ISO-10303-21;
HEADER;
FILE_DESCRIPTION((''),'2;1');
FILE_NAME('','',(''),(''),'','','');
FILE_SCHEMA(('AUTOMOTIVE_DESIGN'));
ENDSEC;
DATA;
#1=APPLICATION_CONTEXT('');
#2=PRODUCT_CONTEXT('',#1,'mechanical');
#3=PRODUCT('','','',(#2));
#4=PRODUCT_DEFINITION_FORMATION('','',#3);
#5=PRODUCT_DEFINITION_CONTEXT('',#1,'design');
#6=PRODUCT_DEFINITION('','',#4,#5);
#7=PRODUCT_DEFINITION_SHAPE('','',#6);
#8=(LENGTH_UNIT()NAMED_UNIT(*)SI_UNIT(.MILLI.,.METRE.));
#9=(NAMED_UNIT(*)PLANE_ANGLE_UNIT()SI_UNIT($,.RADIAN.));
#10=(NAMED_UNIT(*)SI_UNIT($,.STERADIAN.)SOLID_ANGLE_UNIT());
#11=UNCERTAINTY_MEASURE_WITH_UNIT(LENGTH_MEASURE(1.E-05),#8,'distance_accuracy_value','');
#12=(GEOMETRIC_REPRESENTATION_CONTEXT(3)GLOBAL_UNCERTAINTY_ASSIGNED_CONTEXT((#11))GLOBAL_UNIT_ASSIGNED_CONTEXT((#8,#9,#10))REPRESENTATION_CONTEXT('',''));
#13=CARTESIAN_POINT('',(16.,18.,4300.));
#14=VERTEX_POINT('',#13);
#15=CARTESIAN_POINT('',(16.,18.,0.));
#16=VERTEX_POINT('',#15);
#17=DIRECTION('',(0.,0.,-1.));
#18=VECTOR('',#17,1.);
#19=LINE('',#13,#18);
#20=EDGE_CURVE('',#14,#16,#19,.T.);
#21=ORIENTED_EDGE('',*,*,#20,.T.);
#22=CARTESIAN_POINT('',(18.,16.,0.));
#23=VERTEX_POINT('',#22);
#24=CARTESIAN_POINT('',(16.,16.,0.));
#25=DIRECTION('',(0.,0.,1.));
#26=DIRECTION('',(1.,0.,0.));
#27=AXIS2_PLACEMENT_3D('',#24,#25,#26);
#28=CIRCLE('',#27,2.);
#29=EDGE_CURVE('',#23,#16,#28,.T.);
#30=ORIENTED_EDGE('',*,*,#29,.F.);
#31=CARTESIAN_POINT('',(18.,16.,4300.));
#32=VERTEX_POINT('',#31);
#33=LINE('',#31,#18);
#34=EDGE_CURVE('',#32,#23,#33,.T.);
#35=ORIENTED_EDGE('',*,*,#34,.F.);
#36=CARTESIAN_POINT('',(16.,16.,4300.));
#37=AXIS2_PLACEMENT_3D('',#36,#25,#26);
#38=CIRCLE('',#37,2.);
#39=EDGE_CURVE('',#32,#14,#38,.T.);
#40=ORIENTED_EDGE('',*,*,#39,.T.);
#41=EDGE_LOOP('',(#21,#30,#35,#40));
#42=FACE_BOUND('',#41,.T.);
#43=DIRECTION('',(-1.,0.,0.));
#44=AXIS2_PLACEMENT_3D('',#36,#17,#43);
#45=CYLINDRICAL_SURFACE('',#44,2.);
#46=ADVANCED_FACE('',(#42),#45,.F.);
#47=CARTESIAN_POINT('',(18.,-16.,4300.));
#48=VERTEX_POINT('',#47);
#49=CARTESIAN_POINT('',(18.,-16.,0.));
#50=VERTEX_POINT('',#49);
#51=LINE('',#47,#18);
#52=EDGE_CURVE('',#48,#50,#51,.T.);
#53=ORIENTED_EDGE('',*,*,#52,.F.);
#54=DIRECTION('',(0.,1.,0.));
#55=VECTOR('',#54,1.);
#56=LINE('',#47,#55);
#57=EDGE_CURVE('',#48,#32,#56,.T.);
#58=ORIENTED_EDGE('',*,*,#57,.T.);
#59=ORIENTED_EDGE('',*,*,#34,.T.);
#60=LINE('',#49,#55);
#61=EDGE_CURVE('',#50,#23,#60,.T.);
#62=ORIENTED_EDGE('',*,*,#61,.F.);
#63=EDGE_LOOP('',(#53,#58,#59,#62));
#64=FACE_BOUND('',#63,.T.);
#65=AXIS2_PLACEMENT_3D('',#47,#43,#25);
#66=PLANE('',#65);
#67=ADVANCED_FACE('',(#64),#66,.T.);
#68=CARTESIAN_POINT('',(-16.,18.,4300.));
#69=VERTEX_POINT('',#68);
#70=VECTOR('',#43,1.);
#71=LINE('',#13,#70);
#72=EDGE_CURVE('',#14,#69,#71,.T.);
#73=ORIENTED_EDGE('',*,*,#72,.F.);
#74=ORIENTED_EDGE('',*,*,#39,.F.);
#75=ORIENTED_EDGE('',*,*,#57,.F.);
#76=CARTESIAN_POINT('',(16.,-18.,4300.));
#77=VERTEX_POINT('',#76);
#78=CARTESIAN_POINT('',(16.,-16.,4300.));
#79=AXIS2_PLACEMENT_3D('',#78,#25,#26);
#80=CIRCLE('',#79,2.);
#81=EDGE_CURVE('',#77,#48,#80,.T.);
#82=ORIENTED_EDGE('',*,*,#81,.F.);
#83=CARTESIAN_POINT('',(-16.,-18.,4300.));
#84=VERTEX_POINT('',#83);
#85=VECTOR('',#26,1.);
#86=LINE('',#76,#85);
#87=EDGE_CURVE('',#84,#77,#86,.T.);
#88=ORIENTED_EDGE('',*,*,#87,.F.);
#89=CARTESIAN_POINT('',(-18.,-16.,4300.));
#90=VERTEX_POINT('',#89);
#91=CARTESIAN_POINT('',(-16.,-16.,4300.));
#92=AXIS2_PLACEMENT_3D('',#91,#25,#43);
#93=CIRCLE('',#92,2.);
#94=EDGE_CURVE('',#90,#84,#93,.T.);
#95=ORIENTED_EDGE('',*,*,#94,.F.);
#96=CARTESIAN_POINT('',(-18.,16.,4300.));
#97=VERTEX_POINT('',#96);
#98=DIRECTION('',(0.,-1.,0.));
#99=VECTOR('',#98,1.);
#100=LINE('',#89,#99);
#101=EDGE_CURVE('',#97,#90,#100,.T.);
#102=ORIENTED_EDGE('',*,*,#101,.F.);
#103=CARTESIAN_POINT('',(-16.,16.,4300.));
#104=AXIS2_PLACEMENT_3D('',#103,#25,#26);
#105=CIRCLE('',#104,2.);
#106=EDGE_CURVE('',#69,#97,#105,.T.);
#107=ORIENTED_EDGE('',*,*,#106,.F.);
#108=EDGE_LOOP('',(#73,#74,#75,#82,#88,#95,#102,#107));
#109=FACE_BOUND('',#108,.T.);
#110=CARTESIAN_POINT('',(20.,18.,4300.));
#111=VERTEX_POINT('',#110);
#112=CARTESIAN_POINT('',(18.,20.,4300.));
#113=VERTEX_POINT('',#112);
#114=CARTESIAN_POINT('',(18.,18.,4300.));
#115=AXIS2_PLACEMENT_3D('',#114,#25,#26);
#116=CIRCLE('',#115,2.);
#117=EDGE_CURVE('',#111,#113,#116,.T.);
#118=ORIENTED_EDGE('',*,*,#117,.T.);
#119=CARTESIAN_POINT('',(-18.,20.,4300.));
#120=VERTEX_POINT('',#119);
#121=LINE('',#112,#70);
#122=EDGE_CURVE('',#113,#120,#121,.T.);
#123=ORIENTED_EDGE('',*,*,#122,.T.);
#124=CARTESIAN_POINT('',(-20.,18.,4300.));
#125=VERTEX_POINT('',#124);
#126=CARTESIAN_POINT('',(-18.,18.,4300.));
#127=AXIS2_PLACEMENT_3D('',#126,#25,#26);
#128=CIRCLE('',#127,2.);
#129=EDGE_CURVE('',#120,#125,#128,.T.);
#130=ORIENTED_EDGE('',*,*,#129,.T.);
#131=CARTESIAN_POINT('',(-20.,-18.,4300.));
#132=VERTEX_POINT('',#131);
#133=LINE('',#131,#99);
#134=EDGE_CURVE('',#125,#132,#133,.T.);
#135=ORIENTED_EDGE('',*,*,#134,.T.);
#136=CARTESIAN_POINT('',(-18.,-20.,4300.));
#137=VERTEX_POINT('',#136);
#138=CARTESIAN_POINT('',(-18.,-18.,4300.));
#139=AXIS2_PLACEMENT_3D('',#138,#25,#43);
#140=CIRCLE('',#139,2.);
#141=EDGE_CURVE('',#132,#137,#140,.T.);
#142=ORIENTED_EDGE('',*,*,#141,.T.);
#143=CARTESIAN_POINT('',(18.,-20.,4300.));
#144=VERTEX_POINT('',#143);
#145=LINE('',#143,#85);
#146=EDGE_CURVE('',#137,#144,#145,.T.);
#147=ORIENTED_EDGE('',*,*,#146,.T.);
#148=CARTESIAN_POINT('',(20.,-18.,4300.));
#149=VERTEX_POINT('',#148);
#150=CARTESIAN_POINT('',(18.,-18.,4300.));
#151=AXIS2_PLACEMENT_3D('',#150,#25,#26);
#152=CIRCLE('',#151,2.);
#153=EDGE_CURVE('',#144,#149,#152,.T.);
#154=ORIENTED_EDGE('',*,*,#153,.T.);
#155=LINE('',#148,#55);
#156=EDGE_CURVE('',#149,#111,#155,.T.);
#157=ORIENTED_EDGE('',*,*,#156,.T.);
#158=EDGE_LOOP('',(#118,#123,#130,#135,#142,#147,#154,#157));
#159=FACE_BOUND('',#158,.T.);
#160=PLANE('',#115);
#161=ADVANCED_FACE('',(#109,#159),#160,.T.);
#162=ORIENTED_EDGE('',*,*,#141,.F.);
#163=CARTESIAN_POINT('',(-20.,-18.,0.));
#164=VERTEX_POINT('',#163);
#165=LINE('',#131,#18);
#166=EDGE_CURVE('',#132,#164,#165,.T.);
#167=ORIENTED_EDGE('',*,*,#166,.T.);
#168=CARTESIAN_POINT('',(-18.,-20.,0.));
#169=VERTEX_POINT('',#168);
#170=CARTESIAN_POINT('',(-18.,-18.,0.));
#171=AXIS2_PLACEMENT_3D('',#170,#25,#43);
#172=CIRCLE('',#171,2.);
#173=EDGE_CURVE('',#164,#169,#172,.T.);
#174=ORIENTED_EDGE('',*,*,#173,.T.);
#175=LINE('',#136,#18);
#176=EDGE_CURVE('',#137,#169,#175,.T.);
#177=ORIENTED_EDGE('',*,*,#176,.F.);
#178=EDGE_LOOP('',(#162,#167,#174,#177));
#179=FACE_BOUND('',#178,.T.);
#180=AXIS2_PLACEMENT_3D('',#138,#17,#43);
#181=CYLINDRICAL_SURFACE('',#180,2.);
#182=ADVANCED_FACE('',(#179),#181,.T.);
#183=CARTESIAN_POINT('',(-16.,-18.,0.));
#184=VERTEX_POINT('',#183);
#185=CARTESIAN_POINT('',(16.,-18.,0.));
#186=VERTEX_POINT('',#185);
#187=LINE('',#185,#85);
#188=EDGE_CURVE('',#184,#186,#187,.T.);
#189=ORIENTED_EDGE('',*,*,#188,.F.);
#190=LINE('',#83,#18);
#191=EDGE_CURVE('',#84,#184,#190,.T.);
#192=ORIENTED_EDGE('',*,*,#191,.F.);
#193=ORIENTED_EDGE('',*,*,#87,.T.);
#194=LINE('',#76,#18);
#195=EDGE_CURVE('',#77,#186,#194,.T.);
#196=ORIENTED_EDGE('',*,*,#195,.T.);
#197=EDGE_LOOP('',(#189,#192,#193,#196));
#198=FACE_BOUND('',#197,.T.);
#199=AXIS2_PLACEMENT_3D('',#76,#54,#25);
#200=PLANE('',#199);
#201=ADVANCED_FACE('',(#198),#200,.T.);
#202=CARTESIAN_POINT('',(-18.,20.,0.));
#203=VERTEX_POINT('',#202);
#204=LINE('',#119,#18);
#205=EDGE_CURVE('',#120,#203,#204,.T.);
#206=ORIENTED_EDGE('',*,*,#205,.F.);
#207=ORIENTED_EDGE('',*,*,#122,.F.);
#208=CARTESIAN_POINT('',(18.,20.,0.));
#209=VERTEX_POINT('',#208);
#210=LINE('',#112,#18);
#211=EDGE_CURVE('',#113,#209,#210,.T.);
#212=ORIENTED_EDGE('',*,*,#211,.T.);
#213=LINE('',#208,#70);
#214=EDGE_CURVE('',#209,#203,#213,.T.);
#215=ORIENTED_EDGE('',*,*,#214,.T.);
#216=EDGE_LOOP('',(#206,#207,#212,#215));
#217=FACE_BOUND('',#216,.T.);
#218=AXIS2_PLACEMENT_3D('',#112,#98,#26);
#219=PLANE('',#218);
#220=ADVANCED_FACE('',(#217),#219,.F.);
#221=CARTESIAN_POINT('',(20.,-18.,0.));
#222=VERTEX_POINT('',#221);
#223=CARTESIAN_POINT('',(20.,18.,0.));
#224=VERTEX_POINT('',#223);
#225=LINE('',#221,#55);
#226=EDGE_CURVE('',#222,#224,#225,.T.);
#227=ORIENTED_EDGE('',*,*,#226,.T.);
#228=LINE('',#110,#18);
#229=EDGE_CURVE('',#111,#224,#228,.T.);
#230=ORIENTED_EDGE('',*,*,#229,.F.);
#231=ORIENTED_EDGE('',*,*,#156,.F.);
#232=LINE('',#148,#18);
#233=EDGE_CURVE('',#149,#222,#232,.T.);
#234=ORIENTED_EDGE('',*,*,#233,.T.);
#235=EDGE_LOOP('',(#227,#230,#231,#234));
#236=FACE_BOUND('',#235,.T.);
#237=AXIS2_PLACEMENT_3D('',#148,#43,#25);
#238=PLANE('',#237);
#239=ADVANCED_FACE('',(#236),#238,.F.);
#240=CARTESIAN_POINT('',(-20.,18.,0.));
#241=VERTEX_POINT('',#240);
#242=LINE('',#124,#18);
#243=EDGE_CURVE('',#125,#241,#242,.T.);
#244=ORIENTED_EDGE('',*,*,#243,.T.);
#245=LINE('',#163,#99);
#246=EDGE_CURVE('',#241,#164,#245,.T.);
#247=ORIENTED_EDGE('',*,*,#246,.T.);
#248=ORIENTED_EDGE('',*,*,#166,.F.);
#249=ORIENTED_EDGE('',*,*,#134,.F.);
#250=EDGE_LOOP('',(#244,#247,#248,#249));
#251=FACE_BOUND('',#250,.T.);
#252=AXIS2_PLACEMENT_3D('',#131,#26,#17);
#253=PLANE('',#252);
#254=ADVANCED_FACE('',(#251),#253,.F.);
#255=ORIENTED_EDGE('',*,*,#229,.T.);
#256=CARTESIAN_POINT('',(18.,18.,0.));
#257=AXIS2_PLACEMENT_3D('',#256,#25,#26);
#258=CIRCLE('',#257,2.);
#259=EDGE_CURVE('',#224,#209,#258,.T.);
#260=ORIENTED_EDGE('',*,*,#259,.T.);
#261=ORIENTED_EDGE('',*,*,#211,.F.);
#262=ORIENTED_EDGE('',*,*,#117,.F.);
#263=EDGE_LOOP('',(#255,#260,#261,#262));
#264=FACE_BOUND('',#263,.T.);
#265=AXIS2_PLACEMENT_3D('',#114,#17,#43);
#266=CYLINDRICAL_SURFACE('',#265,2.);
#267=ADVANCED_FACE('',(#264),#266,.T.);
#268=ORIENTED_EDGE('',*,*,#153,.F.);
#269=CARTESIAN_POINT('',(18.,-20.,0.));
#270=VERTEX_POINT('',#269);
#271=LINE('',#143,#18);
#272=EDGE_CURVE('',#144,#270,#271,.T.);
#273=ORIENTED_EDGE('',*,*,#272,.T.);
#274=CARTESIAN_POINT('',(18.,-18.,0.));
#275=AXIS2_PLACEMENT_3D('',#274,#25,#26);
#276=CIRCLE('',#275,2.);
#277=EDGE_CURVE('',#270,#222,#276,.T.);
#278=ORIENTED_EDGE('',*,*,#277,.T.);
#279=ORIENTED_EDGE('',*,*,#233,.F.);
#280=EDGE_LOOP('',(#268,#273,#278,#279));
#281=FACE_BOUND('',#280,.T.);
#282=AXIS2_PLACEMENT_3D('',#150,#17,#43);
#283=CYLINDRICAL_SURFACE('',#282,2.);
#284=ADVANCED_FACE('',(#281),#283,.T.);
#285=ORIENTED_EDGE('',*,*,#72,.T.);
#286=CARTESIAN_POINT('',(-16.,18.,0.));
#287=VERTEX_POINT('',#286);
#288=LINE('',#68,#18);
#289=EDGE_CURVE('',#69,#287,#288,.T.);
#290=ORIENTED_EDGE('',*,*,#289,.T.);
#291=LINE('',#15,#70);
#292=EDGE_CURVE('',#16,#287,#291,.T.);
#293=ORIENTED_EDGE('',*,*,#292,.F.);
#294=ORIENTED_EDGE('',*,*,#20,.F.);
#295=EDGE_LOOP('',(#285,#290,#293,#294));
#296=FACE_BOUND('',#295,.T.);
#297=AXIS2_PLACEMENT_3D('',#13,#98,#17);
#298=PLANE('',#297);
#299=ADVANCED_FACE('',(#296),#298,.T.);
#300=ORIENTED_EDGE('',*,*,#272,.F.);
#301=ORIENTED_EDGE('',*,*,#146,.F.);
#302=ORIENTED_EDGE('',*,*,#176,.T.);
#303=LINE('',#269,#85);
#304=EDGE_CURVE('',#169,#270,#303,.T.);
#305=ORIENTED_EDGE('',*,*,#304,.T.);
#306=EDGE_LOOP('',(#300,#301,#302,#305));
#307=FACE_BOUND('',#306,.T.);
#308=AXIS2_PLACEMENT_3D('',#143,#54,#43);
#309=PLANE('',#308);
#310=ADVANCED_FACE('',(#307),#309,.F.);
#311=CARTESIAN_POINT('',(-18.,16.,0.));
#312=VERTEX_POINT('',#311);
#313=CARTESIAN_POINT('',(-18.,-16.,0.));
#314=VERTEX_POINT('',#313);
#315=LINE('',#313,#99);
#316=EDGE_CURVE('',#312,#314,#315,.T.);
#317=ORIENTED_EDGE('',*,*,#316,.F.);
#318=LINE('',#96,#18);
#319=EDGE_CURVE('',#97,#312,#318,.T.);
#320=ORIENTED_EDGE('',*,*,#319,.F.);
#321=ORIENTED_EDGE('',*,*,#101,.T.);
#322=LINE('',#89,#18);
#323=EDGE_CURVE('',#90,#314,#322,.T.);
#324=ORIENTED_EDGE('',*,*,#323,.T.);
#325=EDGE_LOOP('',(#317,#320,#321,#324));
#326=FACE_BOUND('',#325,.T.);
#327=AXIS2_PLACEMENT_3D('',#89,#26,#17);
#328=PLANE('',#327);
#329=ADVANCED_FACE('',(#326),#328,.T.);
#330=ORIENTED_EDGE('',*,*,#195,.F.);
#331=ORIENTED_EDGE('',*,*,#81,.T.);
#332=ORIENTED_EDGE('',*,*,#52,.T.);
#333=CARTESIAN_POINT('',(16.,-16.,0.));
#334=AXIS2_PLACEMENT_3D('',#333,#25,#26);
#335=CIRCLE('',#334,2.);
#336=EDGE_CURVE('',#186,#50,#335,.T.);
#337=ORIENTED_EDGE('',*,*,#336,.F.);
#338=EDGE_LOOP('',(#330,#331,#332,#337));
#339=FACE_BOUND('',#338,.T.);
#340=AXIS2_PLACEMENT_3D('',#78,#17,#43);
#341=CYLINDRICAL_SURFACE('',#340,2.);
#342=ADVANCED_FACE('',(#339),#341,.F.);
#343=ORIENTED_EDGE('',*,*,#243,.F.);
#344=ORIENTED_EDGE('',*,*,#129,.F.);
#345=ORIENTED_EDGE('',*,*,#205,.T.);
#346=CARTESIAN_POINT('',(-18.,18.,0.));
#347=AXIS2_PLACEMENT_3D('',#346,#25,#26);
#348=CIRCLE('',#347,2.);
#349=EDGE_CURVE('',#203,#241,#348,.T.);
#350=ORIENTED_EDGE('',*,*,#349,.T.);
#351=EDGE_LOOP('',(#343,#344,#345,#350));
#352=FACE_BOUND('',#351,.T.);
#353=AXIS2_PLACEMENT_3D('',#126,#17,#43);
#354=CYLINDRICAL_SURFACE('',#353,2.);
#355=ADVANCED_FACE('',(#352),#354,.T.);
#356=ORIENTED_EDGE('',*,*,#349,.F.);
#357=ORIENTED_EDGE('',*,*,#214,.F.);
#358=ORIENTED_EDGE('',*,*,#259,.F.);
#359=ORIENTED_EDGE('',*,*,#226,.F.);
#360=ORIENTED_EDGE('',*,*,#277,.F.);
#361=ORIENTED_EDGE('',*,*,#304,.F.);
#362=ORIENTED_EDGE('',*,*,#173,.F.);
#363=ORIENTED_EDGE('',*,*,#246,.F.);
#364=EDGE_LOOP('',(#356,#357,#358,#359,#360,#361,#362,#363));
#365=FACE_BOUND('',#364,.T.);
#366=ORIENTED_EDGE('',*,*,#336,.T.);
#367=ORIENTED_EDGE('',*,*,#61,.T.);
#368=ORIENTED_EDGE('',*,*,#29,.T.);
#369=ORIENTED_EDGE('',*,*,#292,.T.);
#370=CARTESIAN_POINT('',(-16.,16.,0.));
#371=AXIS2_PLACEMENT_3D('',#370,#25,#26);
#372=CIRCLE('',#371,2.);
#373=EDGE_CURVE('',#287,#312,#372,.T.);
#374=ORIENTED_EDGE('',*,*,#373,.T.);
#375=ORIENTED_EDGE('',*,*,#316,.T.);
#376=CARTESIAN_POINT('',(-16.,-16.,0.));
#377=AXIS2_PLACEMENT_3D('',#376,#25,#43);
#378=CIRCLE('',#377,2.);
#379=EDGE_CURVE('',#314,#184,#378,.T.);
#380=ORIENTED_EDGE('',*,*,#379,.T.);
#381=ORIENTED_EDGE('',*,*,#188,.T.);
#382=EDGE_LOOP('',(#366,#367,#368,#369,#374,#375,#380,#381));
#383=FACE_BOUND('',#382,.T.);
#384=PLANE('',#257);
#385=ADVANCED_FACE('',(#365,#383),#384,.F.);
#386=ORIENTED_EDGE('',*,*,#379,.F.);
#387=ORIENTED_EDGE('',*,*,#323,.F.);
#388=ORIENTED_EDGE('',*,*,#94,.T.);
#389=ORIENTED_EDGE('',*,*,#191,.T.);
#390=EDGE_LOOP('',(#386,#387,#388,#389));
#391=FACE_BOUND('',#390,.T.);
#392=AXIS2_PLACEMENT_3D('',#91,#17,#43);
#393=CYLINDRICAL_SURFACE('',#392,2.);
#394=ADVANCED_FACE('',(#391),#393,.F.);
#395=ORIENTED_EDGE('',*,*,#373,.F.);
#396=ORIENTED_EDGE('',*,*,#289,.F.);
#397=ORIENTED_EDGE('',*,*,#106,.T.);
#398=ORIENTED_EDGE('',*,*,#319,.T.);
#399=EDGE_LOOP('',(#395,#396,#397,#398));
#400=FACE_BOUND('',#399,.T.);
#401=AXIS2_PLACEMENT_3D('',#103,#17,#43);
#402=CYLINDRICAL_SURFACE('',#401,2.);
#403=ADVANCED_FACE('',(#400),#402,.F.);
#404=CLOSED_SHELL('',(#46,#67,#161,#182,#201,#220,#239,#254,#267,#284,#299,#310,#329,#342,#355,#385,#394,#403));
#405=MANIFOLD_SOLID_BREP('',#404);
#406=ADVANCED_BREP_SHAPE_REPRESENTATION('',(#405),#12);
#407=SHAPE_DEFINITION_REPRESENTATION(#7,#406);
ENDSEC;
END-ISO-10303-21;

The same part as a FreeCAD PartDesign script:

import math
import FreeCAD as App
import Part
import Sketcher

V = App.Vector
Q = App.Units.Quantity

doc = App.newDocument("Part")
body = doc.addObject("PartDesign::Body", "Body")

sketch1 = body.newObject("Sketcher::SketchObject", "Sketch")
sketch1.AttachmentSupport = (doc.getObject("XY_Plane"), [""])
sketch1.MapMode = "FlatFace"
sketch1.addGeometry([
    Part.LineSegment(V(-18, -20, 0), V(18, -20, 0)),
    Part.ArcOfCircle(Part.Circle(V(18, -18, 0), V(0, 0, 1), 2), math.radians(-90), math.radians(0)),
    Part.LineSegment(V(20, -18, 0), V(20, 18, 0)),
    Part.ArcOfCircle(Part.Circle(V(18, 18, 0), V(0, 0, 1), 2), math.radians(0), math.radians(90)),
    Part.LineSegment(V(18, 20, 0), V(-18, 20, 0)),
    Part.ArcOfCircle(Part.Circle(V(-18, 18, 0), V(0, 0, 1), 2), math.radians(90), math.radians(180)),
    Part.LineSegment(V(-20, 18, 0), V(-20, -18, 0)),
    Part.ArcOfCircle(Part.Circle(V(-18, -18, 0), V(0, 0, 1), 2), math.radians(-180), math.radians(-90)),
    Part.LineSegment(V(16, -18, 0), V(-16, -18, 0)),
    Part.ArcOfCircle(Part.Circle(V(-16, -16, 0), V(0, 0, 1), 2), math.radians(-180), math.radians(-90)),
    Part.LineSegment(V(-18, -16, 0), V(-18, 16, 0)),
    Part.ArcOfCircle(Part.Circle(V(-16, 16, 0), V(0, 0, 1), 2), math.radians(90), math.radians(180)),
    Part.LineSegment(V(-16, 18, 0), V(16, 18, 0)),
    Part.ArcOfCircle(Part.Circle(V(16, 16, 0), V(0, 0, 1), 2), math.radians(0), math.radians(90)),
    Part.LineSegment(V(18, 16, 0), V(18, -16, 0)),
    Part.ArcOfCircle(Part.Circle(V(16, -16, 0), V(0, 0, 1), 2), math.radians(-90), math.radians(0)),
], False)
sketch1.addConstraint([
    Sketcher.Constraint("Tangent", 0, 2, 1, 1),
    Sketcher.Constraint("Tangent", 1, 2, 2, 1),
    Sketcher.Constraint("Tangent", 2, 2, 3, 1),
    Sketcher.Constraint("Tangent", 3, 2, 4, 1),
    Sketcher.Constraint("Tangent", 4, 2, 5, 1),
    Sketcher.Constraint("Tangent", 5, 2, 6, 1),
    Sketcher.Constraint("Tangent", 6, 2, 7, 1),
    Sketcher.Constraint("Tangent", 7, 2, 0, 1),
    Sketcher.Constraint("Tangent", 8, 2, 9, 2),
    Sketcher.Constraint("Tangent", 9, 1, 10, 1),
    Sketcher.Constraint("Tangent", 10, 2, 11, 2),
    Sketcher.Constraint("Tangent", 11, 1, 12, 1),
    Sketcher.Constraint("Tangent", 12, 2, 13, 2),
    Sketcher.Constraint("Tangent", 13, 1, 14, 1),
    Sketcher.Constraint("Tangent", 14, 2, 15, 2),
    Sketcher.Constraint("Tangent", 15, 1, 8, 1),
    Sketcher.Constraint("Horizontal", 0),
    Sketcher.Constraint("Vertical", 2),
    Sketcher.Constraint("Horizontal", 4),
    Sketcher.Constraint("Vertical", 6),
    Sketcher.Constraint("Horizontal", 8),
    Sketcher.Constraint("Vertical", 10),
    Sketcher.Constraint("Horizontal", 12),
    Sketcher.Constraint("Vertical", 14),
    Sketcher.Constraint("Equal", 1, 3),
    Sketcher.Constraint("Equal", 3, 5),
    Sketcher.Constraint("Equal", 5, 7),
    Sketcher.Constraint("Equal", 7, 9),
    Sketcher.Constraint("Equal", 9, 11),
    Sketcher.Constraint("Equal", 11, 13),
    Sketcher.Constraint("Equal", 13, 15),
    Sketcher.Constraint("Symmetric", 1, 3, 5, 3, -1, 1),
    Sketcher.Constraint("Symmetric", 9, 3, 13, 3, -1, 1),
    Sketcher.Constraint("Horizontal", 6, 2, 8, 2),
    Sketcher.Constraint("Vertical", 7, 2, 9, 1),
    Sketcher.Constraint("Equal", 4, 2),
    Sketcher.Constraint("Radius", 1, Q("2 mm")),
    Sketcher.Constraint("DistanceX", 0, 1, 0, 2, Q("36 mm")),
])
pad1 = body.newObject("PartDesign::Pad", "Pad")
pad1.Profile = sketch1
pad1.Length = 4300

doc.recompute()
